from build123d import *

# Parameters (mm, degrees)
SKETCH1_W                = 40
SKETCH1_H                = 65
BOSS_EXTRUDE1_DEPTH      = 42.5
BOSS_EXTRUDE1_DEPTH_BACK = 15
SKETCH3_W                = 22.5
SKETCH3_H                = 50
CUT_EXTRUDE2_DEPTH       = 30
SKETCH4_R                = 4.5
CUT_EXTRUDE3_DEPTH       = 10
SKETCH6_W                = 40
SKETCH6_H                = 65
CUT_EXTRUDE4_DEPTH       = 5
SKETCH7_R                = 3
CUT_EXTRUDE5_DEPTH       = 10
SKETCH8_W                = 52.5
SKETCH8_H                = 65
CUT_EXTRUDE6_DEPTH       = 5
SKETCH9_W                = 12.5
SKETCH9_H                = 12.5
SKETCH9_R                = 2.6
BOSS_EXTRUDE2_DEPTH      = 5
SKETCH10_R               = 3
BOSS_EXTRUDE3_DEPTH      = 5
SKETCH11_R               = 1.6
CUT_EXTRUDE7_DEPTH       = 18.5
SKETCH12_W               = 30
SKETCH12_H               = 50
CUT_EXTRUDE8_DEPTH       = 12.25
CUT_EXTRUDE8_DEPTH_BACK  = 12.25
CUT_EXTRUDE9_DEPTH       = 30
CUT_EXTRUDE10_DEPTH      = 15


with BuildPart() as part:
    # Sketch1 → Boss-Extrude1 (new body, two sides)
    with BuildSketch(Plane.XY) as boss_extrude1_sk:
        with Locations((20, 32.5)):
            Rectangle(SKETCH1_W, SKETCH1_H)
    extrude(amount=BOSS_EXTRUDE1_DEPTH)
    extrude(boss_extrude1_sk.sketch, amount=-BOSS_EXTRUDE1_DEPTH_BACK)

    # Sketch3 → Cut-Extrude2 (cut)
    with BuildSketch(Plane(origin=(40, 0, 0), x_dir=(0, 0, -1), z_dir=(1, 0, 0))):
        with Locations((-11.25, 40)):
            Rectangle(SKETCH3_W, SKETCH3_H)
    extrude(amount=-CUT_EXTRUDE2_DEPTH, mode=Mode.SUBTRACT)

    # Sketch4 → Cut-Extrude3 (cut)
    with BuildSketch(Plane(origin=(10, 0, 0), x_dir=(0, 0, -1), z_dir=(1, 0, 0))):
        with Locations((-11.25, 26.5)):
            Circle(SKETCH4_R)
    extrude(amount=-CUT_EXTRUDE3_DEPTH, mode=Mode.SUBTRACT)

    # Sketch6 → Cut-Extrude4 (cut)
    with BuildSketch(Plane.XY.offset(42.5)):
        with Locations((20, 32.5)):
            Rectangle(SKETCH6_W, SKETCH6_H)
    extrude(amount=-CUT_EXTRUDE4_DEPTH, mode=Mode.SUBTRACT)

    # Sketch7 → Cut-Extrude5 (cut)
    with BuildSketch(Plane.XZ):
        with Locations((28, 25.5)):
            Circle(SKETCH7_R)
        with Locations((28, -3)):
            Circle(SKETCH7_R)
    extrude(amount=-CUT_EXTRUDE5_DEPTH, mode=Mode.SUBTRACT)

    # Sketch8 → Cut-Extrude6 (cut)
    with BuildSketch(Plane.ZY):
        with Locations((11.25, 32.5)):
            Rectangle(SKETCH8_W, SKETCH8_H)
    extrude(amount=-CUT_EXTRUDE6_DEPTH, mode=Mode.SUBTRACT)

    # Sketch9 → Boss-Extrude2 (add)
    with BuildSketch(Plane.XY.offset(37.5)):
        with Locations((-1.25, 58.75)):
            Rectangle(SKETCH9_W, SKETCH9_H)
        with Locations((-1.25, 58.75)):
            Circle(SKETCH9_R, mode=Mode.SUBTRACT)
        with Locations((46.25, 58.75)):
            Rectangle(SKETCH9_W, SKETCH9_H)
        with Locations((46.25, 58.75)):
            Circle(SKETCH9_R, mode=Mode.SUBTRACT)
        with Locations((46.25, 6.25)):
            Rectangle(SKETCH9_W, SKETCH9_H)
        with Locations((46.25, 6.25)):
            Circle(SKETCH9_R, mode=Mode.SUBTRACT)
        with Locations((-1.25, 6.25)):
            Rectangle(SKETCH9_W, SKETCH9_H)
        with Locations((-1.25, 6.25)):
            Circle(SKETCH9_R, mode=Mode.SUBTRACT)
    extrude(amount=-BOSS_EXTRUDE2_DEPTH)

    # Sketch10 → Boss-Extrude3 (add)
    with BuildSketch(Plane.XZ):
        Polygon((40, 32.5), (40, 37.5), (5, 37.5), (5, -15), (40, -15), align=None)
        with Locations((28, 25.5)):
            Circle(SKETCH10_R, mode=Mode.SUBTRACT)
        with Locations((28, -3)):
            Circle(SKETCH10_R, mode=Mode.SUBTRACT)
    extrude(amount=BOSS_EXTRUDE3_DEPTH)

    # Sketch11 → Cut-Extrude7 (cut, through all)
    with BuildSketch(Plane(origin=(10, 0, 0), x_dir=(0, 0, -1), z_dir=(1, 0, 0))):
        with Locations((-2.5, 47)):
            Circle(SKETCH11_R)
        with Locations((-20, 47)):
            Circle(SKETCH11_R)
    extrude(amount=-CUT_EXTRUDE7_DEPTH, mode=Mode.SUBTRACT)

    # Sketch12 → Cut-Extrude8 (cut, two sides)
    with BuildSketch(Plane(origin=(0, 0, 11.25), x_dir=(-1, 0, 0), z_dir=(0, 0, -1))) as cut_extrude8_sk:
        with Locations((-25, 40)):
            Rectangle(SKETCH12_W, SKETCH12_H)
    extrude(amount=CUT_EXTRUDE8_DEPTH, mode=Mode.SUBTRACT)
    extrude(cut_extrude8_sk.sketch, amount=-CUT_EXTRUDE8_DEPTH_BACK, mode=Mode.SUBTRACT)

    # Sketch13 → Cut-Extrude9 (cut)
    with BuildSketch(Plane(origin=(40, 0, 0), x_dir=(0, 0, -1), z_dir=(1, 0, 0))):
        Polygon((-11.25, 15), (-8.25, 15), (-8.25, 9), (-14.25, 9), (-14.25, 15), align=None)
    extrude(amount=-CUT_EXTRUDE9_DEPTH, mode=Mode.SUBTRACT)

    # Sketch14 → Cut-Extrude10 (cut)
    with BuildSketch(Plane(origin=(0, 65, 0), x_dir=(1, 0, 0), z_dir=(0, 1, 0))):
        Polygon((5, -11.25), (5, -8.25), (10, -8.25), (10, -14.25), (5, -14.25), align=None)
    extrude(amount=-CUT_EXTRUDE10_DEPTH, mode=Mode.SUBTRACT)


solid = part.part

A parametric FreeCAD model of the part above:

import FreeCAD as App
import Part
import Sketcher

V = App.Vector

doc = App.newDocument("Part")
body = doc.addObject("PartDesign::Body", "Body")

sketch1 = body.newObject("Sketcher::SketchObject", "Sketch")
sketch1.AttachmentSupport = (doc.getObject("XY_Plane"), [""])
sketch1.MapMode = "FlatFace"
sketch1.addGeometry([
    Part.LineSegment(V(0, 65, 0), V(0, 0, 0)),
    Part.LineSegment(V(0, 0, 0), V(40, 0, 0)),
    Part.LineSegment(V(40, 0, 0), V(40, 65, 0)),
    Part.LineSegment(V(40, 65, 0), V(0, 65, 0)),
], False)
sketch1.addConstraint([
    Sketcher.Constraint("Coincident", 0, 2, 1, 1),
    Sketcher.Constraint("Coincident", 1, 2, 2, 1),
    Sketcher.Constraint("Coincident", 2, 2, 3, 1),
    Sketcher.Constraint("Coincident", 3, 2, 0, 1),
    Sketcher.Constraint("Vertical", 0),
    Sketcher.Constraint("Horizontal", 1),
    Sketcher.Constraint("Vertical", 2),
    Sketcher.Constraint("Horizontal", 3),
    Sketcher.Constraint("Coincident", 0, 2, -1, 1),
    Sketcher.Constraint("DistanceX", 1, 1, 1, 2, 40.0),
    Sketcher.Constraint("DistanceY", 0, 2, 0, 1, 65.0),
])
pad1 = body.newObject("PartDesign::Pad", "Pad")
pad1.Profile = sketch1
pad1.Type = "TwoLengths"
pad1.Length = 42.5
pad1.Length2 = 15

sketch2 = body.newObject("Sketcher::SketchObject", "Sketch001")
sketch2.AttachmentSupport = (doc.getObject("YZ_Plane"), [""])
sketch2.MapMode = "FlatFace"
sketch2.AttachmentOffset = App.Placement(V(0, 0, 40), App.Rotation())
sketch2.addGeometry([
    Part.LineSegment(V(65, 22, 0), V(15, 22, 0)),
    Part.LineSegment(V(15, 22, 0), V(15, 0, 0)),
    Part.LineSegment(V(15, 0, 0), V(65, 0, 0)),
    Part.LineSegment(V(65, 0, 0), V(65, 22, 0)),
], False)
sketch2.addConstraint([
    Sketcher.Constraint("Coincident", 0, 2, 1, 1),
    Sketcher.Constraint("Coincident", 1, 2, 2, 1),
    Sketcher.Constraint("Coincident", 2, 2, 3, 1),
    Sketcher.Constraint("Coincident", 3, 2, 0, 1),
    Sketcher.Constraint("Horizontal", 0),
    Sketcher.Constraint("Vertical", 1),
    Sketcher.Constraint("Horizontal", 2),
    Sketcher.Constraint("Vertical", 3),
    Sketcher.Constraint("PointOnObject", 1, 2, -1),
    Sketcher.Constraint("DistanceX", 0, 2, 0, 1, 50.0),
    Sketcher.Constraint("DistanceY", 1, 2, 1, 1, 22.5),
    Sketcher.Constraint("DistanceX", -1, 1, 0, 2, 15.0),
])
pocket1 = body.newObject("PartDesign::Pocket", "Pocket")
pocket1.Profile = sketch2
pocket1.Length = 30

sketch3 = body.newObject("Sketcher::SketchObject", "Sketch002")
sketch3.AttachmentSupport = (doc.getObject("YZ_Plane"), [""])
sketch3.MapMode = "FlatFace"
sketch3.AttachmentOffset = App.Placement(V(0, 0, 10), App.Rotation())
sketch3.addGeometry(Part.Circle(V(26.5, 11.2, 0), V(0, 0, 1), 4.5), False)
sketch3.addConstraint([
    Sketcher.Constraint("Diameter", 0, 9.0),
    Sketcher.Constraint("DistanceX", -1, 1, 0, 3, 26.5),
    Sketcher.Constraint("DistanceY", -1, 1, 0, 3, 11.25),
])
pocket2 = body.newObject("PartDesign::Pocket", "Pocket001")
pocket2.Profile = sketch3
pocket2.Length = 10

sketch4 = body.newObject("Sketcher::SketchObject", "Sketch003")
sketch4.AttachmentSupport = (doc.getObject("XY_Plane"), [""])
sketch4.MapMode = "FlatFace"
sketch4.AttachmentOffset = App.Placement(V(0, 0, 42.5), App.Rotation())
sketch4.addGeometry([
    Part.LineSegment(V(0, 65, 0), V(0, 0, 0)),
    Part.LineSegment(V(0, 0, 0), V(40, 0, 0)),
    Part.LineSegment(V(40, 0, 0), V(40, 65, 0)),
    Part.LineSegment(V(40, 65, 0), V(0, 65, 0)),
], False)
sketch4.addConstraint([
    Sketcher.Constraint("Coincident", 0, 2, 1, 1),
    Sketcher.Constraint("Coincident", 1, 2, 2, 1),
    Sketcher.Constraint("Coincident", 2, 2, 3, 1),
    Sketcher.Constraint("Coincident", 3, 2, 0, 1),
    Sketcher.Constraint("Vertical", 0),
    Sketcher.Constraint("Horizontal", 1),
    Sketcher.Constraint("Vertical", 2),
    Sketcher.Constraint("Horizontal", 3),
    Sketcher.Constraint("Coincident", 0, 2, -1, 1),
    Sketcher.Constraint("DistanceX", 1, 1, 1, 2, 40.0),
    Sketcher.Constraint("DistanceY", 0, 2, 0, 1, 65.0),
])
pocket3 = body.newObject("PartDesign::Pocket", "Pocket002")
pocket3.Profile = sketch4
pocket3.Length = 5

sketch5 = body.newObject("Sketcher::SketchObject", "Sketch004")
sketch5.AttachmentSupport = (doc.getObject("XZ_Plane"), [""])
sketch5.MapMode = "FlatFace"
sketch5.addGeometry([
    Part.Circle(V(28, 25.5, 0), V(0, 0, 1), 3),
    Part.Circle(V(28, -3, 0), V(0, 0, 1), 3),
], False)
sketch5.addConstraint([
    Sketcher.Constraint("Equal", 0, 1),
    Sketcher.Constraint("Vertical", 0, 3, 1, 3),
    Sketcher.Constraint("Diameter", 0, 6.0),
    Sketcher.Constraint("DistanceX", -1, 1, 0, 3, 28.0),
    Sketcher.Constraint("DistanceY", 1, 3, -1, 1, 3.0),
    Sketcher.Constraint("DistanceY", -1, 1, 0, 3, 25.5),
])
pocket4 = body.newObject("PartDesign::Pocket", "Pocket003")
pocket4.Profile = sketch5
pocket4.Length = 10

sketch6 = body.newObject("Sketcher::SketchObject", "Sketch005")
sketch6.AttachmentSupport = (doc.getObject("YZ_Plane"), [""])
sketch6.MapMode = "FlatFace"
sketch6.addGeometry([
    Part.LineSegment(V(65, -15, 0), V(0, -15, 0)),
    Part.LineSegment(V(0, -15, 0), V(0, 38, 0)),
    Part.LineSegment(V(0, 38, 0), V(65, 38, 0)),
    Part.LineSegment(V(65, 38, 0), V(65, -15, 0)),
], False)
sketch6.addConstraint([
    Sketcher.Constraint("Coincident", 0, 2, 1, 1),
    Sketcher.Constraint("Coincident", 1, 2, 2, 1),
    Sketcher.Constraint("Coincident", 2, 2, 3, 1),
    Sketcher.Constraint("Coincident", 3, 2, 0, 1),
    Sketcher.Constraint("Horizontal", 0),
    Sketcher.Constraint("Vertical", 1),
    Sketcher.Constraint("Horizontal", 2),
    Sketcher.Constraint("Vertical", 3),
    Sketcher.Constraint("PointOnObject", 0, 2, -2),
    Sketcher.Constraint("DistanceX", 0, 2, 0, 1, 65.0),
    Sketcher.Constraint("DistanceY", 1, 1, 1, 2, 52.5),
    Sketcher.Constraint("DistanceY", 0, 2, -1, 1, 15.0),
])
pocket5 = body.newObject("PartDesign::Pocket", "Pocket004")
pocket5.Profile = sketch6
pocket5.Length = 5
pocket5.Reversed = True

sketch7 = body.newObject("Sketcher::SketchObject", "Sketch006")
sketch7.AttachmentSupport = (doc.getObject("XY_Plane"), [""])
sketch7.MapMode = "FlatFace"
sketch7.AttachmentOffset = App.Placement(V(0, 0, 37.5), App.Rotation())
sketch7.addGeometry([
    Part.LineSegment(V(-7.5, 65, 0), V(-7.5, 52.5, 0)),
    Part.LineSegment(V(-7.5, 52.5, 0), V(5, 52.5, 0)),
    Part.LineSegment(V(5, 52.5, 0), V(5, 65, 0)),
    Part.LineSegment(V(5, 65, 0), V(-7.5, 65, 0)),
    Part.Circle(V(-1.2, 58.8, 0), V(0, 0, 1), 2.6),
    Part.LineSegment(V(40, 65, 0), V(40, 52.5, 0)),
    Part.LineSegment(V(40, 52.5, 0), V(52.5, 52.5, 0)),
    Part.LineSegment(V(52.5, 52.5, 0), V(52.5, 65, 0)),
    Part.LineSegment(V(52.5, 65, 0), V(40, 65, 0)),
    Part.Circle(V(46.2, 58.8, 0), V(0, 0, 1), 2.6),
    Part.LineSegment(V(40, 12.5, 0), V(40, 0, 0)),
    Part.LineSegment(V(40, 0, 0), V(52.5, 0, 0)),
    Part.LineSegment(V(52.5, 0, 0), V(52.5, 12.5, 0)),
    Part.LineSegment(V(52.5, 12.5, 0), V(40, 12.5, 0)),
    Part.Circle(V(46.2, 6.2, 0), V(0, 0, 1), 2.6),
    Part.LineSegment(V(-7.5, 12.5, 0), V(-7.5, 0, 0)),
    Part.LineSegment(V(-7.5, 0, 0), V(5, 0, 0)),
    Part.LineSegment(V(5, 0, 0), V(5, 12.5, 0)),
    Part.LineSegment(V(5, 12.5, 0), V(-7.5, 12.5, 0)),
    Part.Circle(V(-1.2, 6.2, 0), V(0, 0, 1), 2.6),
], False)
sketch7.addConstraint([
    Sketcher.Constraint("Coincident", 0, 2, 1, 1),
    Sketcher.Constraint("Coincident", 1, 2, 2, 1),
    Sketcher.Constraint("Coincident", 2, 2, 3, 1),
    Sketcher.Constraint("Coincident", 3, 2, 0, 1),
    Sketcher.Constraint("Coincident", 5, 2, 6, 1),
    Sketcher.Constraint("Coincident", 6, 2, 7, 1),
    Sketcher.Constraint("Coincident", 7, 2, 8, 1),
    Sketcher.Constraint("Coincident", 8, 2, 5, 1),
    Sketcher.Constraint("Coincident", 10, 2, 11, 1),
    Sketcher.Constraint("Coincident", 11, 2, 12, 1),
    Sketcher.Constraint("Coincident", 12, 2, 13, 1),
    Sketcher.Constraint("Coincident", 13, 2, 10, 1),
    Sketcher.Constraint("Coincident", 15, 2, 16, 1),
    Sketcher.Constraint("Coincident", 16, 2, 17, 1),
    Sketcher.Constraint("Coincident", 17, 2, 18, 1),
    Sketcher.Constraint("Coincident", 18, 2, 15, 1),
    Sketcher.Constraint("Vertical", 0),
    Sketcher.Constraint("Horizontal", 1),
    Sketcher.Constraint("Vertical", 2),
    Sketcher.Constraint("Horizontal", 3),
    Sketcher.Constraint("Vertical", 5),
    Sketcher.Constraint("Horizontal", 6),
    Sketcher.Constraint("Vertical", 7),
    Sketcher.Constraint("Horizontal", 8),
    Sketcher.Constraint("Vertical", 10),
    Sketcher.Constraint("Horizontal", 11),
    Sketcher.Constraint("Vertical", 12),
    Sketcher.Constraint("Horizontal", 13),
    Sketcher.Constraint("Vertical", 15),
    Sketcher.Constraint("Horizontal", 16),
    Sketcher.Constraint("Vertical", 17),
    Sketcher.Constraint("Horizontal", 18),
    Sketcher.Constraint("Equal", 4, 9),
    Sketcher.Constraint("Equal", 9, 14),
    Sketcher.Constraint("Equal", 14, 19),
    Sketcher.Constraint("PointOnObject", 10, 2, -1),
    Sketcher.Constraint("PointOnObject", 15, 2, -1),
    Sketcher.Constraint("Horizontal", 4, 3, 9, 3),
    Sketcher.Constraint("Horizontal", 14, 3, 19, 3),
    Sketcher.Constraint("Horizontal", 1, 2, 5, 2),
    Sketcher.Constraint("Horizontal", 3, 2, 7, 2),
    Sketcher.Constraint("Horizontal", 13, 2, 17, 2),
    Sketcher.Constraint("Vertical", 9, 3, 14, 3),
    Sketcher.Constraint("Vertical", 4, 3, 19, 3),
    Sketcher.Constraint("Vertical", 8, 2, 10, 2),
    Sketcher.Constraint("Vertical", 7, 2, 11, 2),
    Sketcher.Constraint("Vertical", 3, 2, 15, 2),
    Sketcher.Constraint("Vertical", 2, 2, 16, 2),
    Sketcher.Constraint("Equal", 3, 6),
    Sketcher.Constraint("Equal", 18, 0),
    Sketcher.Constraint("Equal", 7, 10),
    Sketcher.Constraint("Diameter", 4, 5.2),
    Sketcher.Constraint("DistanceX", 1, 1, 1, 2, 12.5),
    Sketcher.Constraint("DistanceX", -1, 1, 1, 2, 5.0),
    Sketcher.Constraint("DistanceY", -1, 1, 2, 2, 65.0),
    Sketcher.Constraint("DistanceX", -1, 1, 5, 2, 40.0),
    Sketcher.Constraint("DistanceX", 4, 3, 9, 3, 47.5),
    Sketcher.Constraint("DistanceY", 14, 3, 9, 3, 52.5),
    Sketcher.Constraint("DistanceX", 4, 3, -1, 1, 1.25),
    Sketcher.Constraint("DistanceY", -1, 1, 4, 3, 58.75),
])
pad2 = body.newObject("PartDesign::Pad", "Pad001")
pad2.Profile = sketch7
pad2.Length = 5
pad2.Reversed = True

sketch8 = body.newObject("Sketcher::SketchObject", "Sketch007")
sketch8.AttachmentSupport = (doc.getObject("XZ_Plane"), [""])
sketch8.MapMode = "FlatFace"
sketch8.addGeometry([
    Part.LineSegment(V(40, 37.5, 0), V(5, 37.5, 0)),
    Part.LineSegment(V(5, 37.5, 0), V(5, -15, 0)),
    Part.LineSegment(V(5, -15, 0), V(40, -15, 0)),
    Part.LineSegment(V(40, -15, 0), V(40, 37.5, 0)),
    Part.Circle(V(28, -3, 0), V(0, 0, 1), 3),
    Part.Circle(V(28, 25.5, 0), V(0, 0, 1), 3),
], False)
sketch8.addConstraint([
    Sketcher.Constraint("Coincident", 0, 2, 1, 1),
    Sketcher.Constraint("Coincident", 1, 2, 2, 1),
    Sketcher.Constraint("Coincident", 2, 2, 3, 1),
    Sketcher.Constraint("Coincident", 3, 2, 0, 1),
    Sketcher.Constraint("Horizontal", 0),
    Sketcher.Constraint("Vertical", 1),
    Sketcher.Constraint("Horizontal", 2),
    Sketcher.Constraint("Vertical", 3),
    Sketcher.Constraint("Equal", 4, 5),
    Sketcher.Constraint("Vertical", 4, 3, 5, 3),
    Sketcher.Constraint("Diameter", 4, 6.0),
    Sketcher.Constraint("DistanceX", 0, 2, 0, 1, 35.0),
    Sketcher.Constraint("DistanceY", 1, 2, 1, 1, 52.5),
    Sketcher.Constraint("DistanceX", -1, 1, 4, 3, 28.0),
    Sketcher.Constraint("DistanceY", 4, 3, -1, 1, 3.0),
    Sketcher.Constraint("DistanceX", -1, 1, 0, 2, 5.0),
    Sketcher.Constraint("DistanceY", 1, 2, -1, 1, 15.0),
    Sketcher.Constraint("DistanceY", 5, 3, 0, 2, 12.0),
])
pad3 = body.newObject("PartDesign::Pad", "Pad002")
pad3.Profile = sketch8
pad3.Length = 5

sketch9 = body.newObject("Sketcher::SketchObject", "Sketch008")
sketch9.AttachmentSupport = (doc.getObject("YZ_Plane"), [""])
sketch9.MapMode = "FlatFace"
sketch9.AttachmentOffset = App.Placement(V(0, 0, 10), App.Rotation())
sketch9.addGeometry([
    Part.Circle(V(47, 2.5, 0), V(0, 0, 1), 1.6),
    Part.Circle(V(47, 20, 0), V(0, 0, 1), 1.6),
], False)
sketch9.addConstraint([
    Sketcher.Constraint("Equal", 0, 1),
    Sketcher.Constraint("Vertical", 0, 3, 1, 3),
    Sketcher.Constraint("Diameter", 0, 3.2),
    Sketcher.Constraint("DistanceX", -1, 1, 0, 3, 47.0),
    Sketcher.Constraint("DistanceY", -1, 1, 1, 3, 20.0),
    Sketcher.Constraint("DistanceY", -1, 1, 0, 3, 2.5),
])
pocket6 = body.newObject("PartDesign::Pocket", "Pocket005")
pocket6.Profile = sketch9
pocket6.Type = "ThroughAll"

sketch10 = body.newObject("Sketcher::SketchObject", "Sketch009")
sketch10.AttachmentSupport = (doc.getObject("XY_Plane"), [""])
sketch10.MapMode = "FlatFace"
sketch10.AttachmentOffset = App.Placement(V(0, 0, 11.25), App.Rotation())
sketch10.addGeometry([
    Part.LineSegment(V(40, 65, 0), V(40, 15, 0)),
    Part.LineSegment(V(40, 15, 0), V(10, 15, 0)),
    Part.LineSegment(V(10, 15, 0), V(10, 65, 0)),
    Part.LineSegment(V(10, 65, 0), V(40, 65, 0)),
], False)
sketch10.addConstraint([
    Sketcher.Constraint("Coincident", 0, 2, 1, 1),
    Sketcher.Constraint("Coincident", 1, 2, 2, 1),
    Sketcher.Constraint("Coincident", 2, 2, 3, 1),
    Sketcher.Constraint("Coincident", 3, 2, 0, 1),
    Sketcher.Constraint("Vertical", 0),
    Sketcher.Constraint("Horizontal", 1),
    Sketcher.Constraint("Vertical", 2),
    Sketcher.Constraint("Horizontal", 3),
    Sketcher.Constraint("DistanceX", 1, 2, 1, 1, 30.0),
    Sketcher.Constraint("DistanceY", 0, 2, 0, 1, 50.0),
    Sketcher.Constraint("DistanceX", -1, 1, 0, 2, 40.0),
    Sketcher.Constraint("DistanceY", -1, 1, 0, 2, 15.0),
])
pocket7 = body.newObject("PartDesign::Pocket", "Pocket006")
pocket7.Profile = sketch10
pocket7.Type = "TwoLengths"
pocket7.Length = 12.25
pocket7.Length2 = 12.25

sketch11 = body.newObject("Sketcher::SketchObject", "Sketch010")
sketch11.AttachmentSupport = (doc.getObject("YZ_Plane"), [""])
sketch11.MapMode = "FlatFace"
sketch11.AttachmentOffset = App.Placement(V(0, 0, 40), App.Rotation())
sketch11.addGeometry([
    Part.LineSegment(V(15, 8, 0), V(15, 14, 0)),
    Part.LineSegment(V(15, 14, 0), V(9, 14, 0)),
    Part.LineSegment(V(9, 14, 0), V(9, 8, 0)),
    Part.LineSegment(V(9, 8, 0), V(15, 8, 0)),
], False)
sketch11.addConstraint([
    Sketcher.Constraint("Coincident", 0, 2, 1, 1),
    Sketcher.Constraint("Coincident", 1, 2, 2, 1),
    Sketcher.Constraint("Coincident", 2, 2, 3, 1),
    Sketcher.Constraint("Coincident", 3, 2, 0, 1),
    Sketcher.Constraint("Vertical", 0),
    Sketcher.Constraint("Horizontal", 1),
    Sketcher.Constraint("Vertical", 2),
    Sketcher.Constraint("Horizontal", 3),
    Sketcher.Constraint("Equal", 3, 0),
    Sketcher.Constraint("DistanceX", 1, 2, 1, 1, 6.0),
    Sketcher.Constraint("DistanceX", -1, 1, 0, 2, 15.0),
    Sketcher.Constraint("DistanceY", -1, 1, 0, 2, 14.25),
])
pocket8 = body.newObject("PartDesign::Pocket", "Pocket007")
pocket8.Profile = sketch11
pocket8.Length = 30

sketch12 = body.newObject("Sketcher::SketchObject", "Sketch011")
sketch12.AttachmentSupport = (doc.getObject("XZ_Plane"), [""])
sketch12.MapMode = "FlatFace"
sketch12.AttachmentOffset = App.Placement(V(0, 0, -65), App.Rotation())
sketch12.addGeometry([
    Part.LineSegment(V(5, 8, 0), V(5, 14, 0)),
    Part.LineSegment(V(5, 14, 0), V(10, 14, 0)),
    Part.LineSegment(V(10, 14, 0), V(10, 8, 0)),
    Part.LineSegment(V(10, 8, 0), V(5, 8, 0)),
], False)
sketch12.addConstraint([
    Sketcher.Constraint("Coincident", 0, 2, 1, 1),
    Sketcher.Constraint("Coincident", 1, 2, 2, 1),
    Sketcher.Constraint("Coincident", 2, 2, 3, 1),
    Sketcher.Constraint("Coincident", 3, 2, 0, 1),
    Sketcher.Constraint("Vertical", 0),
    Sketcher.Constraint("Horizontal", 1),
    Sketcher.Constraint("Vertical", 2),
    Sketcher.Constraint("Horizontal", 3),
    Sketcher.Constraint("DistanceX", 1, 1, 1, 2, 5.0),
    Sketcher.Constraint("DistanceY", 0, 1, 0, 2, 6.0),
    Sketcher.Constraint("DistanceX", -1, 1, 0, 2, 5.0),
    Sketcher.Constraint("DistanceY", -1, 1, 0, 2, 14.25),
])
pocket9 = body.newObject("PartDesign::Pocket", "Pocket008")
pocket9.Profile = sketch12
pocket9.Length = 15
pocket9.Reversed = True

doc.recompute()
